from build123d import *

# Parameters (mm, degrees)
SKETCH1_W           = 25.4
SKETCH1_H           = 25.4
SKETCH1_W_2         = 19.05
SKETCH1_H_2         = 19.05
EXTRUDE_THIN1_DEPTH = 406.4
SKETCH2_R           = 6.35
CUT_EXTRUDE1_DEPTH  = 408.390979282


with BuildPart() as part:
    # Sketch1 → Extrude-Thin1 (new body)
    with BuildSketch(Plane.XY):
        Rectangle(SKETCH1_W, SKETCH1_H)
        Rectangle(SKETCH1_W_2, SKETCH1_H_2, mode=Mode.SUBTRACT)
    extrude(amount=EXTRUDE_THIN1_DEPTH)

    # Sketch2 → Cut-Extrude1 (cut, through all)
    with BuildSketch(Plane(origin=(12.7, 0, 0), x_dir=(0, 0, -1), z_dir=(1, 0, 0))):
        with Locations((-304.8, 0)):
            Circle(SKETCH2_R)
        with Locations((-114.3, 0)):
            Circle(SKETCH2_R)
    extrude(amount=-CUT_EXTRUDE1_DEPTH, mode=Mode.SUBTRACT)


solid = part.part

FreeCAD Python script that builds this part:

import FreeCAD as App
import Part
import Sketcher
from FreeCAD import Vector
Q = App.Units.Quantity


def add_polygon(sketch, points):
    """Adds a closed chain of lines whose ends are joined by coincident constraints."""
    first, n = sketch.GeometryCount, len(points)
    for a, b in zip(points, points[1:] + points[:1]):
        sketch.addGeometry(Part.LineSegment(App.Vector(*a, 0), App.Vector(*b, 0)), False)
    for i in range(n):
        sketch.addConstraint(Sketcher.Constraint("Coincident", first + i, 2, first + (i + 1) % n, 1))

doc = App.newDocument("Part")
body = doc.addObject("PartDesign::Body", "Body")

# Sketch on XY plane
sketch1 = body.newObject("Sketcher::SketchObject", "Sketch")
sketch1.AttachmentSupport = (doc.getObject("XY_Plane"), [""])
sketch1.MapMode = "FlatFace"
add_polygon(sketch1, [(-12.7, 12.7), (-12.7, -12.7), (12.7, -12.7), (12.7, 12.7)])  # lines 0-3
add_polygon(sketch1, [(9.525, -9.525), (-9.525, -9.525), (-9.525, 9.525), (9.525, 9.525)])  # lines 4-7
sketch1.addConstraint(Sketcher.Constraint("Vertical", 0))
sketch1.addConstraint(Sketcher.Constraint("Horizontal", 1))
sketch1.addConstraint(Sketcher.Constraint("Vertical", 2))
sketch1.addConstraint(Sketcher.Constraint("Horizontal", 3))
sketch1.addConstraint(Sketcher.Constraint("Horizontal", 4))
sketch1.addConstraint(Sketcher.Constraint("Vertical", 5))
sketch1.addConstraint(Sketcher.Constraint("Horizontal", 6))
sketch1.addConstraint(Sketcher.Constraint("Vertical", 7))
sketch1.addConstraint(Sketcher.Constraint("Symmetric", 0, 2, 2, 2, -1, 1))
sketch1.addConstraint(Sketcher.Constraint("Symmetric", 4, 2, 6, 2, -1, 1))
sketch1.addConstraint(Sketcher.Constraint("Equal", 3, 0))
sketch1.addConstraint(Sketcher.Constraint("Equal", 6, 5))
sketch1.addConstraint(Sketcher.Constraint("DistanceX", 1, 1, 1, 2, Q("1 in")))
sketch1.addConstraint(Sketcher.Constraint("DistanceX", 4, 2, 4, 1, Q("0.75 in")))
pad1 = body.newObject("PartDesign::Pad", "Pad")
pad1.Profile = sketch1
pad1.Length = Q("16 in")

# Sketch on YZ plane
sketch2 = body.newObject("Sketcher::SketchObject", "Sketch001")
sketch2.AttachmentSupport = (doc.getObject("YZ_Plane"), [""])
sketch2.MapMode = "FlatFace"
sketch2.AttachmentOffset = App.Placement(Vector(0, 0, 0.5 * 25.4), App.Rotation())
sketch2.addGeometry(Part.Circle(Vector(0, 304.8, 0), Vector(0, 0, 1), 6.35), False)
sketch2.addGeometry(Part.Circle(Vector(0, 114.3, 0), Vector(0, 0, 1), 6.35), False)
sketch2.addConstraint(Sketcher.Constraint("Equal", 0, 1))
sketch2.addConstraint(Sketcher.Constraint("PointOnObject", 0, 3, -2))
sketch2.addConstraint(Sketcher.Constraint("PointOnObject", 1, 3, -2))
sketch2.addConstraint(Sketcher.Constraint("Diameter", 0, Q("0.5 in")))
sketch2.addConstraint(Sketcher.Constraint("DistanceY", -1, 1, 0, 3, Q("12 in")))
sketch2.addConstraint(Sketcher.Constraint("DistanceY", -1, 1, 1, 3, Q("4.5 in")))
pocket1 = body.newObject("PartDesign::Pocket", "Pocket")
pocket1.Profile = sketch2
pocket1.Type = "ThroughAll"

doc.recompute()
